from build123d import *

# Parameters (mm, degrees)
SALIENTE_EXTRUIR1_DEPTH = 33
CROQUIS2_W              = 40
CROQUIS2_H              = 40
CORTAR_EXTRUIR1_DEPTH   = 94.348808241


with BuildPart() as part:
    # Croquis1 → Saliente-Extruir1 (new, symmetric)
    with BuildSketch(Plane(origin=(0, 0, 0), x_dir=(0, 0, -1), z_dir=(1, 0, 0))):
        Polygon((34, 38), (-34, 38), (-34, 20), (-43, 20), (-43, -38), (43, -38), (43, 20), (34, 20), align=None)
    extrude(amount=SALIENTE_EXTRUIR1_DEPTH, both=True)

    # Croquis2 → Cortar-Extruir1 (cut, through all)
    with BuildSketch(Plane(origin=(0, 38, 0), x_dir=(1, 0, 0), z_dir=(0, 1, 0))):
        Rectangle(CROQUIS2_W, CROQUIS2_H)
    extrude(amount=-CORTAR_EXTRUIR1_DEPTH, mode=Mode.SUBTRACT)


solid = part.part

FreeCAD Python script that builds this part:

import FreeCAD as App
import Part
import Sketcher
from FreeCAD import Vector

doc = App.newDocument("Part")
body = doc.addObject("PartDesign::Body", "Body")

sketch1 = body.newObject("Sketcher::SketchObject", "Sketch")
sketch1.AttachmentSupport = (doc.getObject("YZ_Plane"), [""])
sketch1.MapMode = "FlatFace"
sketch1.addGeometry(Part.LineSegment(Vector(38, -34, 0), Vector(38, 34, 0)), False)
sketch1.addGeometry(Part.LineSegment(Vector(38, 34, 0), Vector(20, 34, 0)), False)
sketch1.addGeometry(Part.LineSegment(Vector(20, 34, 0), Vector(20, 43, 0)), False)
sketch1.addGeometry(Part.LineSegment(Vector(20, 43, 0), Vector(-38, 43, 0)), False)
sketch1.addGeometry(Part.LineSegment(Vector(-38, 43, 0), Vector(-38, -43, 0)), False)
sketch1.addGeometry(Part.LineSegment(Vector(-38, -43, 0), Vector(20, -43, 0)), False)
sketch1.addGeometry(Part.LineSegment(Vector(20, -43, 0), Vector(20, -34, 0)), False)
sketch1.addGeometry(Part.LineSegment(Vector(20, -34, 0), Vector(38, -34, 0)), False)
sketch1.addConstraint(Sketcher.Constraint("Coincident", 0, 2, 1, 1))
sketch1.addConstraint(Sketcher.Constraint("Coincident", 1, 2, 2, 1))
sketch1.addConstraint(Sketcher.Constraint("Coincident", 2, 2, 3, 1))
sketch1.addConstraint(Sketcher.Constraint("Coincident", 3, 2, 4, 1))
sketch1.addConstraint(Sketcher.Constraint("Coincident", 4, 2, 5, 1))
sketch1.addConstraint(Sketcher.Constraint("Coincident", 5, 2, 6, 1))
sketch1.addConstraint(Sketcher.Constraint("Coincident", 6, 2, 7, 1))
sketch1.addConstraint(Sketcher.Constraint("Coincident", 7, 2, 0, 1))
sketch1.addConstraint(Sketcher.Constraint("Vertical", 0))
sketch1.addConstraint(Sketcher.Constraint("Horizontal", 1))
sketch1.addConstraint(Sketcher.Constraint("Vertical", 2))
sketch1.addConstraint(Sketcher.Constraint("Horizontal", 3))
sketch1.addConstraint(Sketcher.Constraint("Vertical", 4))
sketch1.addConstraint(Sketcher.Constraint("Horizontal", 5))
sketch1.addConstraint(Sketcher.Constraint("Vertical", 6))
sketch1.addConstraint(Sketcher.Constraint("Horizontal", 7))
sketch1.addConstraint(Sketcher.Constraint("Symmetric", 2, 2, 5, 2, -1))
sketch1.addConstraint(Sketcher.Constraint("Equal", 2, 6))
sketch1.addConstraint(Sketcher.Constraint("DistanceX", 1, 2, 1, 1, 18.0))
sketch1.addConstraint(Sketcher.Constraint("DistanceX", 3, 2, 3, 1, 58.0))
sketch1.addConstraint(Sketcher.Constraint("DistanceY", 0, 1, 0, 2, 68.0))
sketch1.addConstraint(Sketcher.Constraint("DistanceY", 2, 1, 2, 2, 9.0))
sketch1.addConstraint(Sketcher.Constraint("DistanceX", -1, 1, 0, 2, 38.0))
pad1 = body.newObject("PartDesign::Pad", "Pad")
pad1.Profile = sketch1
pad1.Length = 66
pad1.Midplane = True

sketch2 = body.newObject("Sketcher::SketchObject", "Sketch001")
sketch2.AttachmentSupport = (doc.getObject("XZ_Plane"), [""])
sketch2.MapMode = "FlatFace"
sketch2.AttachmentOffset = App.Placement(Vector(0, 0, -38), App.Rotation())
sketch2.addGeometry(Part.LineSegment(Vector(-20, -20, 0), Vector(-20, 20, 0)), False)
sketch2.addGeometry(Part.LineSegment(Vector(-20, 20, 0), Vector(20, 20, 0)), False)
sketch2.addGeometry(Part.LineSegment(Vector(20, 20, 0), Vector(20, -20, 0)), False)
sketch2.addGeometry(Part.LineSegment(Vector(20, -20, 0), Vector(-20, -20, 0)), False)
sketch2.addConstraint(Sketcher.Constraint("Coincident", 0, 2, 1, 1))
sketch2.addConstraint(Sketcher.Constraint("Coincident", 1, 2, 2, 1))
sketch2.addConstraint(Sketcher.Constraint("Coincident", 2, 2, 3, 1))
sketch2.addConstraint(Sketcher.Constraint("Coincident", 3, 2, 0, 1))
sketch2.addConstraint(Sketcher.Constraint("Vertical", 0))
sketch2.addConstraint(Sketcher.Constraint("Horizontal", 1))
sketch2.addConstraint(Sketcher.Constraint("Vertical", 2))
sketch2.addConstraint(Sketcher.Constraint("Horizontal", 3))
sketch2.addConstraint(Sketcher.Constraint("Symmetric", 0, 2, 2, 2, -1, 1))
sketch2.addConstraint(Sketcher.Constraint("Equal", 3, 0))
sketch2.addConstraint(Sketcher.Constraint("DistanceX", 1, 1, 1, 2, 40.0))
pocket1 = body.newObject("PartDesign::Pocket", "Pocket")
pocket1.Profile = sketch2
pocket1.Type = "ThroughAll"
pocket1.Reversed = True

doc.recompute()
